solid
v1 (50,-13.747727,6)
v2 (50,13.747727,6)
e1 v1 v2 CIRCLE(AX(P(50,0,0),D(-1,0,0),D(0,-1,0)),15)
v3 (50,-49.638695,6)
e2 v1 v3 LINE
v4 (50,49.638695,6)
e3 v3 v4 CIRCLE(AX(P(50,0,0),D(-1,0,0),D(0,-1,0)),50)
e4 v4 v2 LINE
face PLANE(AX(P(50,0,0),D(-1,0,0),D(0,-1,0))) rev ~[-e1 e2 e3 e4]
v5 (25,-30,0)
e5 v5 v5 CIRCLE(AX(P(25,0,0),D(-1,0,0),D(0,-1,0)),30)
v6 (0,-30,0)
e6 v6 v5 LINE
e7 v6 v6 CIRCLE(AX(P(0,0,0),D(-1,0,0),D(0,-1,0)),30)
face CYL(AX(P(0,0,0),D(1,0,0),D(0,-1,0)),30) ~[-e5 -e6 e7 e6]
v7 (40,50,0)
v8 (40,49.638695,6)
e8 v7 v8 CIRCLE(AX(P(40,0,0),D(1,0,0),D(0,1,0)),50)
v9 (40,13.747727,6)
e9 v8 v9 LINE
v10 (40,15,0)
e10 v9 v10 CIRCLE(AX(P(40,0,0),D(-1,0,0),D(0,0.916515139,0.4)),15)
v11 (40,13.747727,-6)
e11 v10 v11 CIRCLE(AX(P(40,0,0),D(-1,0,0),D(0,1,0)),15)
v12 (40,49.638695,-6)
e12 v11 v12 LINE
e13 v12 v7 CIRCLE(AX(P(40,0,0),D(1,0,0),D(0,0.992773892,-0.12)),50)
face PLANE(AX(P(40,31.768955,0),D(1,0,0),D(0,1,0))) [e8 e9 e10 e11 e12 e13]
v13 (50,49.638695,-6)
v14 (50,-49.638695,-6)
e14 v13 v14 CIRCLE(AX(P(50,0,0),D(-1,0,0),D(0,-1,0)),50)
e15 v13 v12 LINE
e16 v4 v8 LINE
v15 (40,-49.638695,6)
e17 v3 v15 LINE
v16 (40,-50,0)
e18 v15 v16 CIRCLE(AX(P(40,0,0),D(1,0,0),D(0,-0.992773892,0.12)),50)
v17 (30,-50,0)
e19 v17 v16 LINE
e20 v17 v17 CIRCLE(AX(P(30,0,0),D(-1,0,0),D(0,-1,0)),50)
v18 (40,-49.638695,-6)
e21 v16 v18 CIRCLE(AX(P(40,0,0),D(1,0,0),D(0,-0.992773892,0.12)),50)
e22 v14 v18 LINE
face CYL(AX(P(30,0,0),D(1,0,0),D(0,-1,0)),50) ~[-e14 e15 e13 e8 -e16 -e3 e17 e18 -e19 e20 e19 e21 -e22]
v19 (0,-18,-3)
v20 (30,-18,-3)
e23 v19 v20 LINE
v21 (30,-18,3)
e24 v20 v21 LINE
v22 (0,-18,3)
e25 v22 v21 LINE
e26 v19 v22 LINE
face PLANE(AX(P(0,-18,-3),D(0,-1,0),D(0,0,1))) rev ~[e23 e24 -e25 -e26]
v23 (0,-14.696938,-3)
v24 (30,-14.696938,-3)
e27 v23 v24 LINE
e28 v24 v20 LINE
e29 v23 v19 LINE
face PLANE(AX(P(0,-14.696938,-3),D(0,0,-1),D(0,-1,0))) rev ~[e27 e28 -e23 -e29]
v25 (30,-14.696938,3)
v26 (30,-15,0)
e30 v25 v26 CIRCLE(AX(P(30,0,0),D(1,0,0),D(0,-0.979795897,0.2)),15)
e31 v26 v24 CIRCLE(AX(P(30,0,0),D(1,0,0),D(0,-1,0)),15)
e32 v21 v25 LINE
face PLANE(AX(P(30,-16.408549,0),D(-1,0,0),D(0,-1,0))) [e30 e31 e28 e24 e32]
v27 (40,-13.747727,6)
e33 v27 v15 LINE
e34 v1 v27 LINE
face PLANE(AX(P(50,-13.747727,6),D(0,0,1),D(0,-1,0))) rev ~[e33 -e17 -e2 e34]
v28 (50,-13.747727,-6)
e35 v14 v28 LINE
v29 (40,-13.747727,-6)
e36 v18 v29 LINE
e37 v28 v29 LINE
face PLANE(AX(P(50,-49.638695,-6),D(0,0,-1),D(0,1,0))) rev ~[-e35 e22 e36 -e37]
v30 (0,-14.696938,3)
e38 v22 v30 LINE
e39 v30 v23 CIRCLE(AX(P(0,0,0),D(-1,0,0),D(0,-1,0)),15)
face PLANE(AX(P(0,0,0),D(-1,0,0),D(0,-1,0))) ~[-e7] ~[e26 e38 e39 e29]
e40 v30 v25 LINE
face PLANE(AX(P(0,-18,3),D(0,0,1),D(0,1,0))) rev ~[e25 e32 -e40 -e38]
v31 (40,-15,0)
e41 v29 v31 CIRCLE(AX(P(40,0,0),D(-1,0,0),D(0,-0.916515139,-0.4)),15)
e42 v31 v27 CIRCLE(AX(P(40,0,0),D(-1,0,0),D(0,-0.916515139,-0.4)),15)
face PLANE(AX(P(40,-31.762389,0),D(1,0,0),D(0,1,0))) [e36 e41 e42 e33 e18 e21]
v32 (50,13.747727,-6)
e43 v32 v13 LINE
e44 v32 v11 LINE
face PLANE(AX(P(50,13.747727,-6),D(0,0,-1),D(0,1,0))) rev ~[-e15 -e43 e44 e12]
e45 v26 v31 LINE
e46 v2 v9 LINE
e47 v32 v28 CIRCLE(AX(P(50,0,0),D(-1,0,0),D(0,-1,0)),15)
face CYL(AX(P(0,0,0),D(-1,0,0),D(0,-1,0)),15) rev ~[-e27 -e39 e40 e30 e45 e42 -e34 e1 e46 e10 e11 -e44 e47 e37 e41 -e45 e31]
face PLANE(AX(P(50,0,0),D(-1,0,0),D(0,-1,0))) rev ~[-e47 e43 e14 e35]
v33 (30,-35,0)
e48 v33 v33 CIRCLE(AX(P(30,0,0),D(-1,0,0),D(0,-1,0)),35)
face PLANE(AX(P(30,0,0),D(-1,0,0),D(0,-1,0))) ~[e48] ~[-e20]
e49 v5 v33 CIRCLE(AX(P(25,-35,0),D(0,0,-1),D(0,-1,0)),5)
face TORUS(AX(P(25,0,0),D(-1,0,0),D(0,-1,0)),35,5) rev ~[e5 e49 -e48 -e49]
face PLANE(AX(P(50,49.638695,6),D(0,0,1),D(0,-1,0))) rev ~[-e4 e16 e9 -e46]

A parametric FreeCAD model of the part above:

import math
import FreeCAD as App
import Part
import Sketcher

V = App.Vector
Q = App.Units.Quantity


def edges_at(feature, points):
    """Names of the edges that pass closest to the given points."""
    edges = feature.Shape.Edges
    near = lambda p: min(range(len(edges)), key=lambda i: edges[i].distToShape(Part.Vertex(*p))[0])
    return sorted({f"Edge{near(p) + 1}" for p in points})


def add_polygon(sketch, points):
    """Adds a closed chain of lines whose ends are joined by coincident constraints."""
    first, n = sketch.GeometryCount, len(points)
    for a, b in zip(points, points[1:] + points[:1]):
        sketch.addGeometry(Part.LineSegment(App.Vector(*a, 0), App.Vector(*b, 0)), False)
    for i in range(n):
        sketch.addConstraint(Sketcher.Constraint("Coincident", first + i, 2, first + (i + 1) % n, 1))

doc = App.newDocument("Part")
params = doc.addObject("Spreadsheet::Sheet", "Params")
for row, (alias, value) in enumerate([
    ("sketch1_width", "40 mm"),
    ("sketch1_width2", "30 mm"),
    ("sketch1_width3", "20 mm"),
    ("sketch1_height", "44 mm"),
    ("revolution_angle", "360 deg"),
    ("sketch2_diameter", "30 mm"),
    ("sketch3_radius", "15 mm"),
    ("sketch3_height", "6 mm"),
    ("pocket2_length", "30 mm"),
    ("sketch4_radius", "50 mm"),
    ("sketch4_radius2", "15 mm"),
    ("pocket3_length", "10 mm"),
    ("fillet_radius", "5 mm"),
], start=1):
    params.set(f"A{row}", alias)
    params.set(f"B{row}", "=" + value)
    params.setAlias(f"B{row}", alias)

body = doc.addObject("PartDesign::Body", "Body")

# Sketch on XY plane
sketch1 = body.newObject("Sketcher::SketchObject", "Sketch")
sketch1.AttachmentSupport = (doc.getObject("XY_Plane"), [""])
sketch1.MapMode = "FlatFace"
add_polygon(sketch1, [(40, 0), (0, 0), (0, -30), (30, -30), (30, -50), (50, -50), (50, -6), (40, -6)])  # lines 0-7
sketch1.addConstraint(Sketcher.Constraint("Horizontal", 0))
sketch1.addConstraint(Sketcher.Constraint("Vertical", 1))
sketch1.addConstraint(Sketcher.Constraint("Horizontal", 2))
sketch1.addConstraint(Sketcher.Constraint("Vertical", 3))
sketch1.addConstraint(Sketcher.Constraint("Horizontal", 4))
sketch1.addConstraint(Sketcher.Constraint("Vertical", 5))
sketch1.addConstraint(Sketcher.Constraint("Horizontal", 6))
sketch1.addConstraint(Sketcher.Constraint("Vertical", 7))
sketch1.addConstraint(Sketcher.Constraint("Coincident", 0, 2, -1, 1))
sketch1.addConstraint(Sketcher.Constraint("Equal", 2, 1))
sketch1.addConstraint(Sketcher.Constraint("Equal", 4, 3))
sketch1.addConstraint(Sketcher.Constraint("DistanceX", 0, 2, 0, 1, Q("40 mm")))
sketch1.addConstraint(Sketcher.Constraint("DistanceX", 2, 1, 2, 2, Q("30 mm")))
sketch1.addConstraint(Sketcher.Constraint("DistanceX", 4, 1, 4, 2, Q("20 mm")))
sketch1.addConstraint(Sketcher.Constraint("DistanceY", 5, 1, 5, 2, Q("44 mm")))
sketch1.setExpression("Constraints[19]", "Params.sketch1_width")
sketch1.setExpression("Constraints[20]", "Params.sketch1_width2")
sketch1.setExpression("Constraints[21]", "Params.sketch1_width3")
sketch1.setExpression("Constraints[22]", "Params.sketch1_height")
revolution = body.newObject("PartDesign::Revolution", "Revolution")
revolution.Profile = sketch1
revolution.ReferenceAxis = (sketch1, ["H_Axis"])
revolution.setExpression("Angle", "Params.revolution_angle")

# Sketch on YZ plane
sketch2 = body.newObject("Sketcher::SketchObject", "Sketch001")
sketch2.AttachmentSupport = (doc.getObject("YZ_Plane"), [""])
sketch2.MapMode = "FlatFace"
sketch2.addGeometry(Part.Circle(V(0, 0, 0), V(0, 0, 1), 15), False)
sketch2.addConstraint(Sketcher.Constraint("Coincident", 0, 3, -1, 1))
sketch2.addConstraint(Sketcher.Constraint("Diameter", 0, Q("30 mm")))
sketch2.setExpression("Constraints[1]", "Params.sketch2_diameter")
pocket1 = body.newObject("PartDesign::Pocket", "Pocket")
pocket1.Profile = sketch2
pocket1.Type = "ThroughAll"
pocket1.Reversed = True

# Sketch on YZ plane
sketch3 = body.newObject("Sketcher::SketchObject", "Sketch002")
sketch3.AttachmentSupport = (doc.getObject("YZ_Plane"), [""])
sketch3.MapMode = "FlatFace"
sketch3.addGeometry(Part.LineSegment(V(-14.7, -3, 0), V(-18, -3, 0)), False)
sketch3.addGeometry(Part.LineSegment(V(-18, -3, 0), V(-18, 3, 0)), False)
sketch3.addGeometry(Part.LineSegment(V(-18, 3, 0), V(-14.7, 3, 0)), False)
sketch3.addGeometry(Part.ArcOfCircle(Part.Circle(V(0, 0, 0), V(0, 0, 1), 15), math.radians(168.46), math.radians(180)), False)
sketch3.addGeometry(Part.ArcOfCircle(Part.Circle(V(0, 0, 0), V(0, 0, 1), 15), math.radians(180), math.radians(191.54)), False)
sketch3.addConstraint(Sketcher.Constraint("Coincident", 0, 2, 1, 1))
sketch3.addConstraint(Sketcher.Constraint("Coincident", 1, 2, 2, 1))
sketch3.addConstraint(Sketcher.Constraint("Coincident", 2, 2, 3, 1))
sketch3.addConstraint(Sketcher.Constraint("Tangent", 3, 2, 4, 1))
sketch3.addConstraint(Sketcher.Constraint("Coincident", 4, 2, 0, 1))
sketch3.addConstraint(Sketcher.Constraint("Horizontal", 0))
sketch3.addConstraint(Sketcher.Constraint("Vertical", 1))
sketch3.addConstraint(Sketcher.Constraint("Horizontal", 2))
sketch3.addConstraint(Sketcher.Constraint("Coincident", 3, 3, -1, 1))
sketch3.addConstraint(Sketcher.Constraint("Equal", 3, 4))
sketch3.addConstraint(Sketcher.Constraint("PointOnObject", 3, 2, -1))
sketch3.addConstraint(Sketcher.Constraint("Vertical", 2, 2, 4, 2))
sketch3.addConstraint(Sketcher.Constraint("Radius", 3, Q("15 mm")))
sketch3.addConstraint(Sketcher.Constraint("DistanceY", 1, 1, 1, 2, Q("6 mm")))
sketch3.addConstraint(Sketcher.Constraint("DistanceX", 0, 2, -1, 1, Q("18 mm")))
sketch3.setExpression("Constraints[12]", "Params.sketch3_radius")
sketch3.setExpression("Constraints[13]", "Params.sketch3_height")
pocket2 = body.newObject("PartDesign::Pocket", "Pocket001")
pocket2.Profile = sketch3
pocket2.setExpression("Length", "Params.pocket2_length")
pocket2.Reversed = True

# Sketch on YZ plane
sketch4 = body.newObject("Sketcher::SketchObject", "Sketch003")
sketch4.AttachmentSupport = (doc.getObject("YZ_Plane"), [""])
sketch4.MapMode = "FlatFace"
sketch4.AttachmentOffset = App.Placement(V(0, 0, 50), App.Rotation())
sketch4.addGeometry(Part.ArcOfCircle(Part.Circle(V(0, 0, 0), V(0, 0, 1), 50), math.radians(173.11), math.radians(186.89)), False)
sketch4.addGeometry(Part.LineSegment(V(-50, -6, 0), V(-14, -6, 0)), False)
sketch4.addGeometry(Part.ArcOfCircle(Part.Circle(V(0, 0, 0), V(0, 0, 1), 15), math.radians(156), math.radians(204)), False)
sketch4.addGeometry(Part.LineSegment(V(-14, 6, 0), V(-50, 6, 0)), False)
sketch4.addGeometry(Part.LineSegment(V(14, -6, 0), V(50, -6, 0)), False)
sketch4.addGeometry(Part.ArcOfCircle(Part.Circle(V(0, 0, 0), V(0, 0, 1), 50), math.radians(-6.89), math.radians(0)), False)
sketch4.addGeometry(Part.ArcOfCircle(Part.Circle(V(0, 0, 0), V(0, 0, 1), 50), math.radians(0), math.radians(6.89)), False)
sketch4.addGeometry(Part.LineSegment(V(50, 6, 0), V(14, 6, 0)), False)
sketch4.addGeometry(Part.ArcOfCircle(Part.Circle(V(0, 0, 0), V(0, 0, 1), 15), math.radians(0), math.radians(24)), False)
sketch4.addGeometry(Part.ArcOfCircle(Part.Circle(V(0, 0, 0), V(0, 0, 1), 15), math.radians(-24), math.radians(0)), False)
sketch4.addConstraint(Sketcher.Constraint("Coincident", 0, 2, 1, 1))
sketch4.addConstraint(Sketcher.Constraint("Coincident", 1, 2, 2, 2))
sketch4.addConstraint(Sketcher.Constraint("Coincident", 2, 1, 3, 1))
sketch4.addConstraint(Sketcher.Constraint("Coincident", 3, 2, 0, 1))
sketch4.addConstraint(Sketcher.Constraint("Coincident", 4, 2, 5, 1))
sketch4.addConstraint(Sketcher.Constraint("Tangent", 5, 2, 6, 1))
sketch4.addConstraint(Sketcher.Constraint("Coincident", 6, 2, 7, 1))
sketch4.addConstraint(Sketcher.Constraint("Coincident", 7, 2, 8, 2))
sketch4.addConstraint(Sketcher.Constraint("Tangent", 8, 1, 9, 2))
sketch4.addConstraint(Sketcher.Constraint("Coincident", 9, 1, 4, 1))
sketch4.addConstraint(Sketcher.Constraint("Horizontal", 1))
sketch4.addConstraint(Sketcher.Constraint("Horizontal", 3))
sketch4.addConstraint(Sketcher.Constraint("Horizontal", 4))
sketch4.addConstraint(Sketcher.Constraint("Horizontal", 7))
sketch4.addConstraint(Sketcher.Constraint("Coincident", 0, 3, -1, 1))
sketch4.addConstraint(Sketcher.Constraint("Coincident", 2, 3, -1, 1))
sketch4.addConstraint(Sketcher.Constraint("Coincident", 5, 3, -1, 1))
sketch4.addConstraint(Sketcher.Constraint("Coincident", 8, 3, -1, 1))
sketch4.addConstraint(Sketcher.Constraint("Equal", 0, 5))
sketch4.addConstraint(Sketcher.Constraint("Equal", 5, 6))
sketch4.addConstraint(Sketcher.Constraint("Equal", 2, 8))
sketch4.addConstraint(Sketcher.Constraint("Equal", 8, 9))
sketch4.addConstraint(Sketcher.Constraint("PointOnObject", 5, 2, -1))
sketch4.addConstraint(Sketcher.Constraint("PointOnObject", 8, 1, -1))
sketch4.addConstraint(Sketcher.Constraint("Horizontal", 1, 2, 4, 2))
sketch4.addConstraint(Sketcher.Constraint("Horizontal", 3, 2, 6, 2))
sketch4.addConstraint(Sketcher.Constraint("Vertical", 1, 2, 2, 1))
sketch4.addConstraint(Sketcher.Constraint("Radius", 0, Q("50 mm")))
sketch4.addConstraint(Sketcher.Constraint("Radius", 2, Q("15 mm")))
sketch4.addConstraint(Sketcher.Constraint("DistanceY", 0, 2, -1, 1, Q("6 mm")))
sketch4.setExpression("Constraints[27]", "Params.sketch4_radius")
sketch4.setExpression("Constraints[28]", "Params.sketch4_radius2")
pocket3 = body.newObject("PartDesign::Pocket", "Pocket002")
pocket3.Profile = sketch4
pocket3.setExpression("Length", "Params.pocket3_length")
doc.recompute()

fillet = body.newObject("PartDesign::Fillet", "Fillet")
fillet.Base = (pocket3, edges_at(pocket3, [(30, 30, 0)]))
fillet.setExpression("Radius", "Params.fillet_radius")

doc.recompute()
